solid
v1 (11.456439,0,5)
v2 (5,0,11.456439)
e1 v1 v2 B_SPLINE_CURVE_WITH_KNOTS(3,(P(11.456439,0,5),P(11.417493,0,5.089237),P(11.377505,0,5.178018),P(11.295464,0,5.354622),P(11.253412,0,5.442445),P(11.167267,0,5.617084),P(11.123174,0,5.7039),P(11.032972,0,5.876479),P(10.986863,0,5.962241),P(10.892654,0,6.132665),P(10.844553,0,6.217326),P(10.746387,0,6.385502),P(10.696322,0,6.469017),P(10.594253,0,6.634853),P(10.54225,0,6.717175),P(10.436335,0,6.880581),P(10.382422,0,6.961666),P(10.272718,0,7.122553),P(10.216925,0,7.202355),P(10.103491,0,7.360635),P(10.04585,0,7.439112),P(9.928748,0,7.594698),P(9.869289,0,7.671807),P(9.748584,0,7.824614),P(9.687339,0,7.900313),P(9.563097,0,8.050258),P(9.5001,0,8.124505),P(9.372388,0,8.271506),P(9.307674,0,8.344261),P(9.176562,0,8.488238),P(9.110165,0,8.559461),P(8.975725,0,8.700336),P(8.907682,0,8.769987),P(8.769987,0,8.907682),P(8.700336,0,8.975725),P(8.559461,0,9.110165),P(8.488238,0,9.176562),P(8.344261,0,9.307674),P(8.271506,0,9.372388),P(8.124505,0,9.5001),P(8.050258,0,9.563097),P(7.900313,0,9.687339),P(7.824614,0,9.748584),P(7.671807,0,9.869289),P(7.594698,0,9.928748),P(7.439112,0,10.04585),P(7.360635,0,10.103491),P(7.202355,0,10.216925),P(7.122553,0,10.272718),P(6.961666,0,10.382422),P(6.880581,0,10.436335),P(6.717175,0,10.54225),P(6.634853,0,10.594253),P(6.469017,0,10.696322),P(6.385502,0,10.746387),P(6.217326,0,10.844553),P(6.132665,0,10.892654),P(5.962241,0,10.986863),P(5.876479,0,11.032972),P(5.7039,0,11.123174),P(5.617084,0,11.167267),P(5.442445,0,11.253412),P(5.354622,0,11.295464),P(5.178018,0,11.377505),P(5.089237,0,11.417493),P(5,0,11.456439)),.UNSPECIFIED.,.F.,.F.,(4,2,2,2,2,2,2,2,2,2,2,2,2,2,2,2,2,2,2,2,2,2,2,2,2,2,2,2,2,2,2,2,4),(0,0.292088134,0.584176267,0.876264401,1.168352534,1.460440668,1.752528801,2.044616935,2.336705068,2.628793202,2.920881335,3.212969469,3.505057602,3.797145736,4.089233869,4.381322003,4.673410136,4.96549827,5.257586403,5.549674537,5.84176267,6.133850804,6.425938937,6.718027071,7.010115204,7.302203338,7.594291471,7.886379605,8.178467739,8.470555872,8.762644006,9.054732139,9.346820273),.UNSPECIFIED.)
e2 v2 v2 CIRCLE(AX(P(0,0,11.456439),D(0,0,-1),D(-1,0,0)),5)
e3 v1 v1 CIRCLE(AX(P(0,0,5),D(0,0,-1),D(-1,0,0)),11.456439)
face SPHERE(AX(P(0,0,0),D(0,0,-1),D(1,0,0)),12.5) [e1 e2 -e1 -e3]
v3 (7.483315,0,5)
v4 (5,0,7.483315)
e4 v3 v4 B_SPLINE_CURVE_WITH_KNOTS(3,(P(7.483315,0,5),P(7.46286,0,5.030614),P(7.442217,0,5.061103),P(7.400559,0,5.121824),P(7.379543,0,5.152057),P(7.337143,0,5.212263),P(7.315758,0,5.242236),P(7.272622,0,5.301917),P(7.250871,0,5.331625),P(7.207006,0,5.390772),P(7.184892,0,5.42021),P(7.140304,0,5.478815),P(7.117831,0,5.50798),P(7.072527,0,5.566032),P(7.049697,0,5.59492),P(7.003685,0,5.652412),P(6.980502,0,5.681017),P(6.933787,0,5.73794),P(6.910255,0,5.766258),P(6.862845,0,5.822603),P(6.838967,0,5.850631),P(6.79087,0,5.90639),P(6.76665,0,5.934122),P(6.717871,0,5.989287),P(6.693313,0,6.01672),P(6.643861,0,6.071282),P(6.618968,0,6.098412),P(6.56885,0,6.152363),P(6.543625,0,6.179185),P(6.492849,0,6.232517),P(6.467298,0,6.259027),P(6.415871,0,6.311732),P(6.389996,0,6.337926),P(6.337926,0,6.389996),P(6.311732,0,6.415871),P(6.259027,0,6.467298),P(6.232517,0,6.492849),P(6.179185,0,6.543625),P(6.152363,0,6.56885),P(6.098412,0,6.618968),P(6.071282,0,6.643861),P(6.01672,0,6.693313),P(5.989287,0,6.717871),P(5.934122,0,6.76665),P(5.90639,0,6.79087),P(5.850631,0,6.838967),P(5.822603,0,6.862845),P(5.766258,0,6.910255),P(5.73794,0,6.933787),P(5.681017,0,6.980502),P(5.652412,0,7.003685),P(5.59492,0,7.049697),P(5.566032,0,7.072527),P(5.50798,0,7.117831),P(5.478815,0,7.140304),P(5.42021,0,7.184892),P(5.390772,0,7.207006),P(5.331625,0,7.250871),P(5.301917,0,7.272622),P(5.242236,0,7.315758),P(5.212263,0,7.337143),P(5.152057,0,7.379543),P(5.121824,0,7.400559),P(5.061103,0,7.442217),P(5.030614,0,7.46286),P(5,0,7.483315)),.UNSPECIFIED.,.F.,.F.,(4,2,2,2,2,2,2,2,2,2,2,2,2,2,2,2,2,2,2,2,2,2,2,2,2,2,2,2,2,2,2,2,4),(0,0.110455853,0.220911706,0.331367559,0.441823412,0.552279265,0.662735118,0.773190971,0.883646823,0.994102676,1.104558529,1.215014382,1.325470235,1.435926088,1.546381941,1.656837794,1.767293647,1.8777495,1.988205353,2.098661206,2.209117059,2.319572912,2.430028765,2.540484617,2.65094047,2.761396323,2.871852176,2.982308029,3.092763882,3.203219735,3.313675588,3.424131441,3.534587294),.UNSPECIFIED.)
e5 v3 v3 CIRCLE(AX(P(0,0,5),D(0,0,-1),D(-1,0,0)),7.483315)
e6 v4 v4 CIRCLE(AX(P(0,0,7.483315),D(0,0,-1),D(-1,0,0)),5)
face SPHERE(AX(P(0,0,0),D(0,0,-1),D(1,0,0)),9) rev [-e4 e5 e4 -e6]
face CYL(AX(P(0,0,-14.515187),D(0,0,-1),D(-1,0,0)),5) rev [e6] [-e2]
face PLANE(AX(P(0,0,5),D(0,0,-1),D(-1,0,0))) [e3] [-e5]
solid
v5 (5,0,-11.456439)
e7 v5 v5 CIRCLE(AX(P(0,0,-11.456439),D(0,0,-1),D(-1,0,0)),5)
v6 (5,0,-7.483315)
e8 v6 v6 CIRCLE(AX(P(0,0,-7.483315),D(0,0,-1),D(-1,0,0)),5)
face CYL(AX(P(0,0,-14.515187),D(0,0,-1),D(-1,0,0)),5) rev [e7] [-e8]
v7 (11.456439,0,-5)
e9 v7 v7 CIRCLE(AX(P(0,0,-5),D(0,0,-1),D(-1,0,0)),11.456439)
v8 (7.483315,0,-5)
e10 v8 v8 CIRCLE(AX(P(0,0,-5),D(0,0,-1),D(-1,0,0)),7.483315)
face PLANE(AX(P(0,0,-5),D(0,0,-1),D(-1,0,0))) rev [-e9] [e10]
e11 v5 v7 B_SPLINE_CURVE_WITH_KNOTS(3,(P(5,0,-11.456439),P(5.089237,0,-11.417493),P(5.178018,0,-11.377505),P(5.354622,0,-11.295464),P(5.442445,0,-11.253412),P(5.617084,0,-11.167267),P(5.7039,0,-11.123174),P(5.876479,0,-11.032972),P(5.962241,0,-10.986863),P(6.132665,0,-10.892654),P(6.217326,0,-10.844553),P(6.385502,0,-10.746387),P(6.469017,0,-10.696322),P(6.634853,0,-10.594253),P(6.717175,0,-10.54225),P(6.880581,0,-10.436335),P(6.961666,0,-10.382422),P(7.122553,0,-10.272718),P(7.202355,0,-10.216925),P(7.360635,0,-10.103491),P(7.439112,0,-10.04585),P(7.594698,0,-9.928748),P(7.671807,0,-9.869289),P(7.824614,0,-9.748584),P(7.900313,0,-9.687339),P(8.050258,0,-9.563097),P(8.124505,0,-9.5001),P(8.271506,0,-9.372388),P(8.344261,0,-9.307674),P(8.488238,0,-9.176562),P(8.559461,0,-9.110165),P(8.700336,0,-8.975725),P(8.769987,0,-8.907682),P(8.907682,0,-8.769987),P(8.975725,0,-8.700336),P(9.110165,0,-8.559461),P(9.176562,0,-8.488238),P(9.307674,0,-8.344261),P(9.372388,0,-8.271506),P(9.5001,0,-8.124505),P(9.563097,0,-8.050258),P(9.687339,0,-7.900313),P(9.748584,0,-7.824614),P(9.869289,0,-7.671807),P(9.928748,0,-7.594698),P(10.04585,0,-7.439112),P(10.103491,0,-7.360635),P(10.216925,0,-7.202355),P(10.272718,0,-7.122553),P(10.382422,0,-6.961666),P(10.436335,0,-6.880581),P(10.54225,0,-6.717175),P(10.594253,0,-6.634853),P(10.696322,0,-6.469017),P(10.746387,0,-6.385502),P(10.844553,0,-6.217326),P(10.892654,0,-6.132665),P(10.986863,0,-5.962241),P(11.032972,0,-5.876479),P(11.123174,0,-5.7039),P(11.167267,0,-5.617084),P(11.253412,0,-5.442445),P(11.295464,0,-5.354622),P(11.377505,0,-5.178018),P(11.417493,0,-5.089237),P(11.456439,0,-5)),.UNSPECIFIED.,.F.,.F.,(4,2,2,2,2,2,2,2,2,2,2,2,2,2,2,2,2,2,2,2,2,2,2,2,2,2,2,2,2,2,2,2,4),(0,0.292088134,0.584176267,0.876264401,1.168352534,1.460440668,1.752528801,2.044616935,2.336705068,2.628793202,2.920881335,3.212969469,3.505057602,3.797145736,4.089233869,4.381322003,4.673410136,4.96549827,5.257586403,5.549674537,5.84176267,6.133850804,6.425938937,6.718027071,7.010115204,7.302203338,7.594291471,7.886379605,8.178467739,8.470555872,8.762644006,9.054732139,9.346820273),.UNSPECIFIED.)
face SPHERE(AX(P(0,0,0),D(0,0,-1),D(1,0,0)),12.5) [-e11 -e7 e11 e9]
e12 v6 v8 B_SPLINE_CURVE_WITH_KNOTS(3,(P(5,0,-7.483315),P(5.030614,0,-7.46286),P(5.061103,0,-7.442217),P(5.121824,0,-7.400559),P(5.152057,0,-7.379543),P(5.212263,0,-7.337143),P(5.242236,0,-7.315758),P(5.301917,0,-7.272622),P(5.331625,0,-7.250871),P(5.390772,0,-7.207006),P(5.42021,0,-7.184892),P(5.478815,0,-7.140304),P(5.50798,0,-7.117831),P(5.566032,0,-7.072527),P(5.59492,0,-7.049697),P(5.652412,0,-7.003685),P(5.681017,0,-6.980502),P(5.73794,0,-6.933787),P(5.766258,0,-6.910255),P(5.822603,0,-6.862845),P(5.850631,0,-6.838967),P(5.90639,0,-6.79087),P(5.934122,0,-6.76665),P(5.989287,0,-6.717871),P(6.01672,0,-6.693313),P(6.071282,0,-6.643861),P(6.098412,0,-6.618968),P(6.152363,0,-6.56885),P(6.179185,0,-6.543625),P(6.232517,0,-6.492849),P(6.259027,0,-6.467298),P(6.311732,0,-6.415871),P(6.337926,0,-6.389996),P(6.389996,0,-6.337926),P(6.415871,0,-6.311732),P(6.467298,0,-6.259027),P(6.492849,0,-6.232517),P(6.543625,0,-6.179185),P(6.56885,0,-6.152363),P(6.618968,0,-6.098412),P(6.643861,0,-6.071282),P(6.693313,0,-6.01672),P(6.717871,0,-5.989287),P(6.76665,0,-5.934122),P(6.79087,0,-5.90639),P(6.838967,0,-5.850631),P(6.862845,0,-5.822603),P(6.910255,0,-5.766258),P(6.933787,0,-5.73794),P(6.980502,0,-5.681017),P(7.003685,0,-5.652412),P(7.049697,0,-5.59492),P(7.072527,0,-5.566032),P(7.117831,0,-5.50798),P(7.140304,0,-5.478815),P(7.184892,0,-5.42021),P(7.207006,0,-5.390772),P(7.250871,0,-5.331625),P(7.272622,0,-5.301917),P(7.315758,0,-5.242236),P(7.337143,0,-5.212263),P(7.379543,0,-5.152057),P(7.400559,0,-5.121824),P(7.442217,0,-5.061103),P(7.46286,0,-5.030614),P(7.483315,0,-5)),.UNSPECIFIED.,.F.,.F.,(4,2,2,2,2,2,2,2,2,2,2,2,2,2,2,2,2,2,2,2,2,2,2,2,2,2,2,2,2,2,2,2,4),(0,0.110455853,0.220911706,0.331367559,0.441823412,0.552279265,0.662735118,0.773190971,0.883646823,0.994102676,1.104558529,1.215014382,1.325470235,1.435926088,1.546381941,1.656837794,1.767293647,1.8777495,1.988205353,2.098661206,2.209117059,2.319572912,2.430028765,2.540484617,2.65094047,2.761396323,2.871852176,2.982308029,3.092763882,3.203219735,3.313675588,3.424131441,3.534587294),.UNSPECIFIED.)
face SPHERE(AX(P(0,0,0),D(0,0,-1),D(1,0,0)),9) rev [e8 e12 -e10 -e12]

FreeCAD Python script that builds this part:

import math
import FreeCAD as App
import Part
import Sketcher
Q = App.Units.Quantity

doc = App.newDocument("Part")
body = doc.addObject("PartDesign::Body", "Body")
body.AllowCompound = True

sketch1 = body.newObject("Sketcher::SketchObject", "Sketch")
sketch1.AttachmentSupport = (doc.getObject("XZ_Plane"), [""])
sketch1.MapMode = "FlatFace"
sketch1.addGeometry(Part.ArcOfCircle(Part.Circle(App.Vector(0, 0, 0), App.Vector(0, 0, 1), 9), math.radians(34), math.radians(56)), False)
sketch1.addGeometry(Part.LineSegment(App.Vector(5, 7.5, 0), App.Vector(5, 11.5, 0)), False)
sketch1.addGeometry(Part.ArcOfCircle(Part.Circle(App.Vector(0, 0, 0), App.Vector(0, 0, 1), 12.5), math.radians(24), math.radians(66)), False)
sketch1.addGeometry(Part.LineSegment(App.Vector(11.5, 5, 0), App.Vector(7.5, 5, 0)), False)
sketch1.addGeometry(Part.LineSegment(App.Vector(7.5, -5, 0), App.Vector(11.5, -5, 0)), False)
sketch1.addGeometry(Part.ArcOfCircle(Part.Circle(App.Vector(0, 0, 0), App.Vector(0, 0, 1), 12.5), math.radians(-66), math.radians(-24)), False)
sketch1.addGeometry(Part.LineSegment(App.Vector(5, -11.5, 0), App.Vector(5, -7.5, 0)), False)
sketch1.addGeometry(Part.ArcOfCircle(Part.Circle(App.Vector(0, 0, 0), App.Vector(0, 0, 1), 9), math.radians(-56), math.radians(-34)), False)
sketch1.addConstraint(Sketcher.Constraint("Coincident", 0, 2, 1, 1))
sketch1.addConstraint(Sketcher.Constraint("Coincident", 1, 2, 2, 2))
sketch1.addConstraint(Sketcher.Constraint("Coincident", 2, 1, 3, 1))
sketch1.addConstraint(Sketcher.Constraint("Coincident", 3, 2, 0, 1))
sketch1.addConstraint(Sketcher.Constraint("Coincident", 4, 2, 5, 2))
sketch1.addConstraint(Sketcher.Constraint("Coincident", 5, 1, 6, 1))
sketch1.addConstraint(Sketcher.Constraint("Coincident", 6, 2, 7, 1))
sketch1.addConstraint(Sketcher.Constraint("Coincident", 7, 2, 4, 1))
sketch1.addConstraint(Sketcher.Constraint("Vertical", 1))
sketch1.addConstraint(Sketcher.Constraint("Horizontal", 3))
sketch1.addConstraint(Sketcher.Constraint("Horizontal", 4))
sketch1.addConstraint(Sketcher.Constraint("Vertical", 6))
sketch1.addConstraint(Sketcher.Constraint("Coincident", 0, 3, -1, 1))
sketch1.addConstraint(Sketcher.Constraint("Coincident", 2, 3, -1, 1))
sketch1.addConstraint(Sketcher.Constraint("Coincident", 5, 3, -1, 1))
sketch1.addConstraint(Sketcher.Constraint("Coincident", 7, 3, -1, 1))
sketch1.addConstraint(Sketcher.Constraint("Equal", 2, 5))
sketch1.addConstraint(Sketcher.Constraint("Equal", 0, 7))
sketch1.addConstraint(Sketcher.Constraint("Vertical", 2, 1, 4, 2))
sketch1.addConstraint(Sketcher.Constraint("Vertical", 1, 2, 5, 1))
sketch1.addConstraint(Sketcher.Constraint("Equal", 4, 1))
sketch1.addConstraint(Sketcher.Constraint("Radius", 0, Q("9 mm")))
sketch1.addConstraint(Sketcher.Constraint("Radius", 2, Q("12.5 mm")))
sketch1.addConstraint(Sketcher.Constraint("DistanceX", -1, 1, 0, 2, Q("5 mm")))
revolution = body.newObject("PartDesign::Revolution", "Revolution")
revolution.Profile = sketch1
revolution.ReferenceAxis = (sketch1, ["V_Axis"])
revolution.Angle = 360

doc.recompute()
